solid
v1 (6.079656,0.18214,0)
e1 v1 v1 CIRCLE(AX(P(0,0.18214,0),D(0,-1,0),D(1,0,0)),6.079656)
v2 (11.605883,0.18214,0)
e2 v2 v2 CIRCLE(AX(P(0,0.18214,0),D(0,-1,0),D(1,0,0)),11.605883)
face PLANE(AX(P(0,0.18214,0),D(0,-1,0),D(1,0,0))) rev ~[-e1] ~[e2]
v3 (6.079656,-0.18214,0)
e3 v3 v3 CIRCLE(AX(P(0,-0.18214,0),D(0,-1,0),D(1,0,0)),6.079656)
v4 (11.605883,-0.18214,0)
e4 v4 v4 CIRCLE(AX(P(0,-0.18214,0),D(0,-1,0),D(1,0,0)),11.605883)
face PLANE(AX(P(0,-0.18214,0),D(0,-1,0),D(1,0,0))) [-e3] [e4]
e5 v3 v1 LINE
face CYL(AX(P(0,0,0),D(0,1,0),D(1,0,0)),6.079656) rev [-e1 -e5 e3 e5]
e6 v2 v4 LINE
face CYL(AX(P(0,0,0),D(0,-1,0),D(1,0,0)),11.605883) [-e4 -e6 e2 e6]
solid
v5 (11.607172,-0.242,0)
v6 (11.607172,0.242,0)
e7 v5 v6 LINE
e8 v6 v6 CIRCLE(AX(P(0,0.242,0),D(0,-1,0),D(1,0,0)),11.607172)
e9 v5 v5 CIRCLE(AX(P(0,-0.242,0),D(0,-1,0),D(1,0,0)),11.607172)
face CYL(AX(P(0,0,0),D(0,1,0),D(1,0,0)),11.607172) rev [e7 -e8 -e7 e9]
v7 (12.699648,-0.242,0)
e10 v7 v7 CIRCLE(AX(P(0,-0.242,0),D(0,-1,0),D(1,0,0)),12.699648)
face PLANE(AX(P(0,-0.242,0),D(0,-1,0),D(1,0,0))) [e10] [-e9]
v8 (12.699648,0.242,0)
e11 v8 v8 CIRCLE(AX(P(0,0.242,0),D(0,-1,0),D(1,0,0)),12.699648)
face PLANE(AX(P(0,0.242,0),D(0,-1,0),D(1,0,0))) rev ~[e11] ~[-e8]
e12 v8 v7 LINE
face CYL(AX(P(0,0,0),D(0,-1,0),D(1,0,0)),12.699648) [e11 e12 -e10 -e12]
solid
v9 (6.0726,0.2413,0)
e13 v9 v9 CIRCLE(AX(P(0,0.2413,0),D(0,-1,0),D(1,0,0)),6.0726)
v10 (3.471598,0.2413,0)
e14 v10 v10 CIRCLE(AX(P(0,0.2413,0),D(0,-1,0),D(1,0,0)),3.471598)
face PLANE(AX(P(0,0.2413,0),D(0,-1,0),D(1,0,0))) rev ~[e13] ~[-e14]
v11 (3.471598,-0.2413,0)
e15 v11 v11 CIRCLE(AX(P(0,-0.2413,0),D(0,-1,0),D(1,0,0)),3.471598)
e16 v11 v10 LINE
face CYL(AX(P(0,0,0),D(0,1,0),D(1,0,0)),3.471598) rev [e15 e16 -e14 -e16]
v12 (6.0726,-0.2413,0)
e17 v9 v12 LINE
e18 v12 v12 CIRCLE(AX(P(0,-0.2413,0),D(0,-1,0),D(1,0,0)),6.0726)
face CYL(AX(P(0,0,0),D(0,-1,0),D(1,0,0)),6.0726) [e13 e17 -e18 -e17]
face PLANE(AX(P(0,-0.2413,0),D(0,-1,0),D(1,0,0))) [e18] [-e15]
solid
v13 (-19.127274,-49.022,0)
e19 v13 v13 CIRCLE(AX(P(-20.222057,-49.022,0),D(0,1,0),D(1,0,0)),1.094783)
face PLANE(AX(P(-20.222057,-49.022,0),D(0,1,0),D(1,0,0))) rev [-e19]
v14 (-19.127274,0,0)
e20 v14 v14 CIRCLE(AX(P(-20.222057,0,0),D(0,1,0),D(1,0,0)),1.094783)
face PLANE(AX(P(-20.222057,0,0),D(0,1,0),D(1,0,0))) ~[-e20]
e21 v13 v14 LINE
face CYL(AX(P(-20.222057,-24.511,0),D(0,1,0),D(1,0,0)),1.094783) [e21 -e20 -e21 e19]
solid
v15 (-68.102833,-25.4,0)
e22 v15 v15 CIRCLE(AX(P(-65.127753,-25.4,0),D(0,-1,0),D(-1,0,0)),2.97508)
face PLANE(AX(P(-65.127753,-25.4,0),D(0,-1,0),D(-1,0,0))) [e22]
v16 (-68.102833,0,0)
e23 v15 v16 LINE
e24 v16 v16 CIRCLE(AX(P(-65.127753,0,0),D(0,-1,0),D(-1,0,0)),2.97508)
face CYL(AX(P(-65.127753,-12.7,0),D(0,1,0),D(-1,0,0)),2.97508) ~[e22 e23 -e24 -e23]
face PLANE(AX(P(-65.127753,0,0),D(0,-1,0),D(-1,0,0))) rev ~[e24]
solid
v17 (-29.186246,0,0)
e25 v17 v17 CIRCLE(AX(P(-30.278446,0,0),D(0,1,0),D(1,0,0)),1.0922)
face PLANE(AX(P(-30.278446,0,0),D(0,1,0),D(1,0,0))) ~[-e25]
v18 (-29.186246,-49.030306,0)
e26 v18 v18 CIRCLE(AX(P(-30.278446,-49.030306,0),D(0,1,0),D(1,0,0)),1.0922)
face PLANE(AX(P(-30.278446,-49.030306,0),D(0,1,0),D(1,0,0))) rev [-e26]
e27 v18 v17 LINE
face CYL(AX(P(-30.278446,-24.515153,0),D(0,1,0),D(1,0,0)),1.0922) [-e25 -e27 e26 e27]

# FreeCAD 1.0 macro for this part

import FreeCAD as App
import Part
import Sketcher
Q = App.Units.Quantity

doc = App.newDocument("Part")
params = doc.addObject("Spreadsheet::Sheet", "Params")
for row, (alias, value) in enumerate([
    ("pad1_length", "0.019 in"),
    ("pad2_length", "0.36428 mm"),
    ("pad3_length", "0.484 mm"),
    ("sketch4_height", "1 in"),
    ("revolution_angle", "360 deg"),
    ("sketch5_width", "0.043 in"),
    ("revolution2_angle", "360 deg"),
    ("sketch6_height", "1.93 in"),
    ("revolution3_angle", "360 deg"),
], start=1):
    params.set(f"A{row}", alias)
    params.set(f"B{row}", "=" + value)
    params.setAlias(f"B{row}", alias)

body = doc.addObject("PartDesign::Body", "Body")

# Sketch on XZ plane
sketch1 = body.newObject("Sketcher::SketchObject", "Sketch")
sketch1.AttachmentSupport = (doc.getObject("XZ_Plane"), [""])
sketch1.MapMode = "FlatFace"
sketch1.addGeometry([
    Part.Circle(App.Vector(0, 0, 0), App.Vector(0, 0, 1), 6.1),
    Part.Circle(App.Vector(0, 0, 0), App.Vector(0, 0, 1), 3.5),
], False)
sketch1.addConstraint([
    Sketcher.Constraint("Coincident", 0, 3, -1, 1),
    Sketcher.Constraint("Coincident", 1, 3, -1, 1),
    Sketcher.Constraint("Diameter", 0, Q("12.1452 mm")),
    Sketcher.Constraint("Diameter", 1, Q("6.943195 mm")),
])
pad1 = body.newObject("PartDesign::Pad", "Pad")
pad1.Profile = sketch1
pad1.setExpression("Length", "Params.pad1_length")
pad1.Midplane = True
body2 = doc.addObject("PartDesign::Body", "Body001")

# Sketch on XZ plane
sketch2 = body2.newObject("Sketcher::SketchObject", "Sketch001")
sketch2.AttachmentSupport = (doc.getObject("XZ_Plane001"), [""])
sketch2.MapMode = "FlatFace"
sketch2.addGeometry([
    Part.Circle(App.Vector(0, 0, 0), App.Vector(0, 0, 1), 12),
    Part.Circle(App.Vector(0, 0, 0), App.Vector(0, 0, 1), 6),
], False)
sketch2.addConstraint([
    Sketcher.Constraint("Coincident", 0, 3, -1, 1),
    Sketcher.Constraint("Coincident", 1, 3, -1, 1),
    Sketcher.Constraint("Diameter", 0, Q("23.211765 mm")),
    Sketcher.Constraint("Diameter", 1, Q("12.159312 mm")),
])
pad2 = body2.newObject("PartDesign::Pad", "Pad001")
pad2.Profile = sketch2
pad2.setExpression("Length", "Params.pad2_length")
pad2.Midplane = True
body3 = doc.addObject("PartDesign::Body", "Body002")

# Sketch on XZ plane
sketch3 = body3.newObject("Sketcher::SketchObject", "Sketch002")
sketch3.AttachmentSupport = (doc.getObject("XZ_Plane002"), [""])
sketch3.MapMode = "FlatFace"
sketch3.addGeometry([
    Part.Circle(App.Vector(0, 0, 0), App.Vector(0, 0, 1), 13),
    Part.Circle(App.Vector(0, 0, 0), App.Vector(0, 0, 1), 12),
], False)
sketch3.addConstraint([
    Sketcher.Constraint("Coincident", 0, 3, -1, 1),
    Sketcher.Constraint("Coincident", 1, 3, -1, 1),
    Sketcher.Constraint("Diameter", 0, Q("25.399296 mm")),
    Sketcher.Constraint("Diameter", 1, Q("23.214343 mm")),
])
pad3 = body3.newObject("PartDesign::Pad", "Pad002")
pad3.Profile = sketch3
pad3.setExpression("Length", "Params.pad3_length")
pad3.Midplane = True
body4 = doc.addObject("PartDesign::Body", "Body003")

# Sketch on XY plane
sketch4 = body4.newObject("Sketcher::SketchObject", "Sketch003")
sketch4.AttachmentSupport = (doc.getObject("XY_Plane003"), [""])
sketch4.MapMode = "FlatFace"
sketch4.addGeometry([
    Part.LineSegment(App.Vector(-68.1, 0, 0), App.Vector(-68.1, -25.4, 0)),
    Part.LineSegment(App.Vector(-68.1, -25.4, 0), App.Vector(-65.1, -25.4, 0)),
    Part.LineSegment(App.Vector(-65.1, -25.4, 0), App.Vector(-65.1, 0, 0)),
    Part.LineSegment(App.Vector(-65.1, 0, 0), App.Vector(-68.1, 0, 0)),
], False)
sketch4.addGeometry(Part.LineSegment(App.Vector(-65.1, 0, 0), App.Vector(-65.1, -25.4, 0)), True)  # axis
sketch4.addConstraint([
    Sketcher.Constraint("Coincident", 0, 2, 1, 1),
    Sketcher.Constraint("Coincident", 1, 2, 2, 1),
    Sketcher.Constraint("Coincident", 2, 2, 3, 1),
    Sketcher.Constraint("Coincident", 3, 2, 0, 1),
    Sketcher.Constraint("Vertical", 0),
    Sketcher.Constraint("Horizontal", 1),
    Sketcher.Constraint("Vertical", 2),
    Sketcher.Constraint("Horizontal", 3),
    Sketcher.Constraint("Vertical", 4),
    Sketcher.Constraint("Coincident", 4, 1, 2, 2),
    Sketcher.Constraint("PointOnObject", 2, 2, -1),
    Sketcher.Constraint("Horizontal", 0, 2, 4, 2),
    Sketcher.Constraint("DistanceY", 0, 2, 0, 1, Q("1 in")),
    Sketcher.Constraint("DistanceX", 1, 1, 1, 2, Q("2.97508 mm")),
    Sketcher.Constraint("DistanceX", 0, 2, -1, 1, Q("68.102833 mm")),
])
sketch4.setExpression("Constraints[12]", "Params.sketch4_height")
revolution = body4.newObject("PartDesign::Revolution", "Revolution")
revolution.Profile = sketch4
revolution.ReferenceAxis = (sketch4, ["Axis0"])
revolution.setExpression("Angle", "Params.revolution_angle")
body5 = doc.addObject("PartDesign::Body", "Body004")

# Sketch on XY plane
sketch5 = body5.newObject("Sketcher::SketchObject", "Sketch004")
sketch5.AttachmentSupport = (doc.getObject("XY_Plane004"), [""])
sketch5.MapMode = "FlatFace"
sketch5.addGeometry([
    Part.LineSegment(App.Vector(-30.3, 0, 0), App.Vector(-30.3, -49, 0)),
    Part.LineSegment(App.Vector(-30.3, -49, 0), App.Vector(-29.2, -49, 0)),
    Part.LineSegment(App.Vector(-29.2, -49, 0), App.Vector(-29.2, 0, 0)),
    Part.LineSegment(App.Vector(-29.2, 0, 0), App.Vector(-30.3, 0, 0)),
], False)
sketch5.addGeometry(Part.LineSegment(App.Vector(-30.3, -49, 0), App.Vector(-30.3, 0, 0)), True)  # axis
sketch5.addConstraint([
    Sketcher.Constraint("Coincident", 0, 2, 1, 1),
    Sketcher.Constraint("Coincident", 1, 2, 2, 1),
    Sketcher.Constraint("Coincident", 2, 2, 3, 1),
    Sketcher.Constraint("Coincident", 3, 2, 0, 1),
    Sketcher.Constraint("Vertical", 0),
    Sketcher.Constraint("Horizontal", 1),
    Sketcher.Constraint("Vertical", 2),
    Sketcher.Constraint("Horizontal", 3),
    Sketcher.Constraint("Vertical", 4),
    Sketcher.Constraint("Coincident", 4, 1, 0, 2),
    Sketcher.Constraint("PointOnObject", 2, 2, -1),
    Sketcher.Constraint("PointOnObject", 4, 2, -1),
    Sketcher.Constraint("DistanceX", 1, 1, 1, 2, Q("0.043 in")),
    Sketcher.Constraint("DistanceY", 0, 2, 0, 1, Q("49.030306 mm")),
    Sketcher.Constraint("DistanceX", 0, 2, -1, 1, Q("30.278446 mm")),
])
sketch5.setExpression("Constraints[12]", "Params.sketch5_width")
revolution2 = body5.newObject("PartDesign::Revolution", "Revolution001")
revolution2.Profile = sketch5
revolution2.ReferenceAxis = (sketch5, ["Axis0"])
revolution2.setExpression("Angle", "Params.revolution2_angle")
body6 = doc.addObject("PartDesign::Body", "Body005")

# Sketch on XY plane
sketch6 = body6.newObject("Sketcher::SketchObject", "Sketch005")
sketch6.AttachmentSupport = (doc.getObject("XY_Plane005"), [""])
sketch6.MapMode = "FlatFace"
sketch6.addGeometry([
    Part.LineSegment(App.Vector(-20.2, 0, 0), App.Vector(-20.2, -49, 0)),
    Part.LineSegment(App.Vector(-20.2, -49, 0), App.Vector(-19.1, -49, 0)),
    Part.LineSegment(App.Vector(-19.1, -49, 0), App.Vector(-19.1, 0, 0)),
    Part.LineSegment(App.Vector(-19.1, 0, 0), App.Vector(-20.2, 0, 0)),
], False)
sketch6.addGeometry(Part.LineSegment(App.Vector(-20.2, -49, 0), App.Vector(-20.2, 0, 0)), True)  # axis
sketch6.addConstraint([
    Sketcher.Constraint("Coincident", 0, 2, 1, 1),
    Sketcher.Constraint("Coincident", 1, 2, 2, 1),
    Sketcher.Constraint("Coincident", 2, 2, 3, 1),
    Sketcher.Constraint("Coincident", 3, 2, 0, 1),
    Sketcher.Constraint("Vertical", 0),
    Sketcher.Constraint("Horizontal", 1),
    Sketcher.Constraint("Vertical", 2),
    Sketcher.Constraint("Horizontal", 3),
    Sketcher.Constraint("Vertical", 4),
    Sketcher.Constraint("Coincident", 4, 1, 0, 2),
    Sketcher.Constraint("PointOnObject", 2, 2, -1),
    Sketcher.Constraint("PointOnObject", 4, 2, -1),
    Sketcher.Constraint("DistanceY", 0, 2, 0, 1, Q("1.93 in")),
    Sketcher.Constraint("DistanceX", 1, 1, 1, 2, Q("1.094783 mm")),
    Sketcher.Constraint("DistanceX", 0, 2, -1, 1, Q("20.222057 mm")),
])
sketch6.setExpression("Constraints[12]", "Params.sketch6_height")
revolution3 = body6.newObject("PartDesign::Revolution", "Revolution002")
revolution3.Profile = sketch6
revolution3.ReferenceAxis = (sketch6, ["Axis0"])
revolution3.setExpression("Angle", "Params.revolution3_angle")

doc.recompute()
